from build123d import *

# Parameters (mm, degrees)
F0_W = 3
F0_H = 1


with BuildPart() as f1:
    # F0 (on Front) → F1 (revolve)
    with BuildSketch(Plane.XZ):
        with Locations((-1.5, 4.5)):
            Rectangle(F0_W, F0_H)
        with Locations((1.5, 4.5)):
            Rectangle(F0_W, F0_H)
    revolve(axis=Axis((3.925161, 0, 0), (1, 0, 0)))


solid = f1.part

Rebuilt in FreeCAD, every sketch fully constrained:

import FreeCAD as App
import Part
import Sketcher
Q = App.Units.Quantity


def add_polygon(sketch, points):
    """Adds a closed chain of lines whose ends are joined by coincident constraints."""
    first, n = sketch.GeometryCount, len(points)
    for a, b in zip(points, points[1:] + points[:1]):
        sketch.addGeometry(Part.LineSegment(App.Vector(*a, 0), App.Vector(*b, 0)), False)
    for i in range(n):
        sketch.addConstraint(Sketcher.Constraint("Coincident", first + i, 2, first + (i + 1) % n, 1))

doc = App.newDocument("Part")
body = doc.addObject("PartDesign::Body", "Body")

# Sketch on XZ plane
sketch1 = body.newObject("Sketcher::SketchObject", "Sketch")
sketch1.AttachmentSupport = (doc.getObject("XZ_Plane"), [""])
sketch1.MapMode = "FlatFace"
add_polygon(sketch1, [(-3, 5), (-3, 4), (3, 4), (3, 5)])  # lines 0-3
sketch1.addConstraint(Sketcher.Constraint("Vertical", 0))
sketch1.addConstraint(Sketcher.Constraint("Horizontal", 1))
sketch1.addConstraint(Sketcher.Constraint("Vertical", 2))
sketch1.addConstraint(Sketcher.Constraint("Horizontal", 3))
sketch1.addConstraint(Sketcher.Constraint("DistanceX", 1, 1, 1, 2, Q("6 mm")))
sketch1.addConstraint(Sketcher.Constraint("DistanceY", 0, 2, 0, 1, Q("1 mm")))
sketch1.addConstraint(Sketcher.Constraint("DistanceX", 0, 2, -1, 1, Q("3 mm")))
sketch1.addConstraint(Sketcher.Constraint("DistanceY", -1, 1, 0, 2, Q("4 mm")))
revolution = body.newObject("PartDesign::Revolution", "Revolution")
revolution.Profile = sketch1
revolution.ReferenceAxis = (sketch1, ["H_Axis"])
revolution.Angle = 360

doc.recompute()
